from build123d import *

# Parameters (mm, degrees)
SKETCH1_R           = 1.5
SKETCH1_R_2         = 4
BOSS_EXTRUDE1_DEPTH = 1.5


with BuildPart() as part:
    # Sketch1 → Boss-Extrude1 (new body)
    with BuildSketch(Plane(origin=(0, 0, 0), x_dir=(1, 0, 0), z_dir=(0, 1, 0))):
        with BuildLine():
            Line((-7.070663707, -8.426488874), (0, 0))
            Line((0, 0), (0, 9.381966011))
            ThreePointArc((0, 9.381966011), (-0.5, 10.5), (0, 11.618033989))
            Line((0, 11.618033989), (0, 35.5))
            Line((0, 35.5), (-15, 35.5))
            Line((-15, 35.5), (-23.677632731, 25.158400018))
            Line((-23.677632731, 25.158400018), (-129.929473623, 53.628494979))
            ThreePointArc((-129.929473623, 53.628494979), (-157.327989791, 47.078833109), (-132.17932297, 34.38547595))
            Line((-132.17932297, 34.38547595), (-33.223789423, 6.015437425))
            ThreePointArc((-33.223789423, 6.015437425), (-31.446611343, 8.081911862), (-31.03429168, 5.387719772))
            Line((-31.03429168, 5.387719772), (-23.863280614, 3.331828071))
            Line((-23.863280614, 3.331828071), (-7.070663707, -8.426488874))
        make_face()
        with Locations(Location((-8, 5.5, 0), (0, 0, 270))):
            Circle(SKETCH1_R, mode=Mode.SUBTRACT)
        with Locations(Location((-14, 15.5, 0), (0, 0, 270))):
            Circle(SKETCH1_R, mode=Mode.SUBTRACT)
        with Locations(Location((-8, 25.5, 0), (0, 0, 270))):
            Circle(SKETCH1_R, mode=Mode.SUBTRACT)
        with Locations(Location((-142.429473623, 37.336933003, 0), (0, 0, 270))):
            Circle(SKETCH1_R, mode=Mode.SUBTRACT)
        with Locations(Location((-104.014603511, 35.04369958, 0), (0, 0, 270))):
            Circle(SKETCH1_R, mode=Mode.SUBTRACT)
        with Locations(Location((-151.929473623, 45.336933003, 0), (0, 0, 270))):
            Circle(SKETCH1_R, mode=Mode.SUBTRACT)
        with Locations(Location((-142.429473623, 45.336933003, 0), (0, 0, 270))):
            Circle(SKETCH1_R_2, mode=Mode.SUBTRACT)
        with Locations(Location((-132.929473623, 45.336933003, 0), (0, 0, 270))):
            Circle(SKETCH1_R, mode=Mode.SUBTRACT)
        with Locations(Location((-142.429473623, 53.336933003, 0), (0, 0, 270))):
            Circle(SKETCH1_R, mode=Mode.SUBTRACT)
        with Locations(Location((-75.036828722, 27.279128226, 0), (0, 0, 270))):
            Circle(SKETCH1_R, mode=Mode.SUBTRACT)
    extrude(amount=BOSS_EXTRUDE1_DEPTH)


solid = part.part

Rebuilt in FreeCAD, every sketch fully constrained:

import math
import FreeCAD as App
import Part
import Sketcher

V = App.Vector
Q = App.Units.Quantity

doc = App.newDocument("Part")
body = doc.addObject("PartDesign::Body", "Body")

# Sketch on XZ plane
sketch1 = doc.addObject("Sketcher::SketchObject", "Sketch")
body.addObject(sketch1)
sketch1.AttachmentSupport = (doc.XZ_Plane, [""])
sketch1.MapMode = "FlatFace"
sketch1.addGeometry(Part.LineSegment(V(-7.1, 8.4, 0), V(0, 0, 0)), False)
sketch1.addGeometry(Part.LineSegment(V(0, 0, 0), V(0, -9.4, 0)), False)
sketch1.addGeometry(Part.ArcOfCircle(Part.Circle(V(1, -10.5, 0), V(0, 0, 1), 1.5), math.radians(132), math.radians(228)), False)
sketch1.addGeometry(Part.LineSegment(V(0, -11.6, 0), V(0, -35.5, 0)), False)
sketch1.addGeometry(Part.LineSegment(V(0, -35.5, 0), V(-15, -35.5, 0)), False)
sketch1.addGeometry(Part.LineSegment(V(-15, -35.5, 0), V(-23.7, -25.2, 0)), False)
sketch1.addGeometry(Part.LineSegment(V(-23.7, -25.2, 0), V(-129.9, -53.6, 0)), False)
sketch1.addGeometry(Part.ArcOfCircle(Part.Circle(V(-142.4, -45.3, 0), V(0, 0, 1), 15), math.radians(47), math.radians(326)), False)
sketch1.addGeometry(Part.LineSegment(V(-132.2, -34.4, 0), V(-33.2, -6, 0)), False)
sketch1.addGeometry(Part.ArcOfCircle(Part.Circle(V(-31.9, -6.6, 0), V(0, 0, 1), 1.5), math.radians(155), math.radians(417)), False)
sketch1.addGeometry(Part.LineSegment(V(-31, -5.4, 0), V(-23.9, -3.3, 0)), False)
sketch1.addGeometry(Part.LineSegment(V(-23.9, -3.3, 0), V(-7.1, 8.4, 0)), False)
sketch1.addGeometry(Part.Circle(V(-8, -5.5, 0), V(0, 0, 1), 1.5), False)
sketch1.addGeometry(Part.Circle(V(-14, -15.5, 0), V(0, 0, 1), 1.5), False)
sketch1.addGeometry(Part.Circle(V(-75, -27.3, 0), V(0, 0, 1), 1.5), False)
sketch1.addGeometry(Part.Circle(V(-8, -25.5, 0), V(0, 0, 1), 1.5), False)
sketch1.addGeometry(Part.Circle(V(-142.4, -37.3, 0), V(0, 0, 1), 1.5), False)
sketch1.addGeometry(Part.Circle(V(-104, -35, 0), V(0, 0, 1), 1.5), False)
sketch1.addGeometry(Part.Circle(V(-151.9, -45.3, 0), V(0, 0, 1), 1.5), False)
sketch1.addGeometry(Part.Circle(V(-142.4, -45.3, 0), V(0, 0, 1), 4), False)
sketch1.addGeometry(Part.Circle(V(-132.9, -45.3, 0), V(0, 0, 1), 1.5), False)
sketch1.addGeometry(Part.Circle(V(-142.4, -53.3, 0), V(0, 0, 1), 1.5), False)
sketch1.addConstraint(Sketcher.Constraint("Coincident", 0, 2, 1, 1))
sketch1.addConstraint(Sketcher.Constraint("Coincident", 1, 2, 2, 1))
sketch1.addConstraint(Sketcher.Constraint("Coincident", 2, 2, 3, 1))
sketch1.addConstraint(Sketcher.Constraint("Coincident", 3, 2, 4, 1))
sketch1.addConstraint(Sketcher.Constraint("Coincident", 4, 2, 5, 1))
sketch1.addConstraint(Sketcher.Constraint("Coincident", 5, 2, 6, 1))
sketch1.addConstraint(Sketcher.Constraint("Coincident", 6, 2, 7, 2))
sketch1.addConstraint(Sketcher.Constraint("Coincident", 7, 1, 8, 1))
sketch1.addConstraint(Sketcher.Constraint("Coincident", 8, 2, 9, 1))
sketch1.addConstraint(Sketcher.Constraint("Coincident", 9, 2, 10, 1))
sketch1.addConstraint(Sketcher.Constraint("Coincident", 10, 2, 11, 1))
sketch1.addConstraint(Sketcher.Constraint("Coincident", 11, 2, 0, 1))
sketch1.addConstraint(Sketcher.Constraint("Vertical", 1))
sketch1.addConstraint(Sketcher.Constraint("Vertical", 3))
sketch1.addConstraint(Sketcher.Constraint("Horizontal", 4))
sketch1.addConstraint(Sketcher.Constraint("Coincident", 0, 2, -1, 1))
sketch1.addConstraint(Sketcher.Constraint("Coincident", 19, 3, 7, 3))
sketch1.addConstraint(Sketcher.Constraint("Equal", 2, 9))
sketch1.addConstraint(Sketcher.Constraint("Equal", 9, 12))
sketch1.addConstraint(Sketcher.Constraint("Equal", 12, 13))
sketch1.addConstraint(Sketcher.Constraint("Equal", 13, 14))
sketch1.addConstraint(Sketcher.Constraint("Equal", 14, 15))
sketch1.addConstraint(Sketcher.Constraint("Equal", 15, 16))
sketch1.addConstraint(Sketcher.Constraint("Equal", 16, 17))
sketch1.addConstraint(Sketcher.Constraint("Equal", 17, 18))
sketch1.addConstraint(Sketcher.Constraint("Equal", 18, 20))
sketch1.addConstraint(Sketcher.Constraint("Equal", 20, 21))
sketch1.addConstraint(Sketcher.Constraint("PointOnObject", 2, 2, -2))
sketch1.addConstraint(Sketcher.Constraint("Parallel", 0, 5))
sketch1.addConstraint(Sketcher.Constraint("Parallel", 8, 10))
sketch1.addConstraint(Sketcher.Constraint("Horizontal", 7, 3, 18, 3))
sketch1.addConstraint(Sketcher.Constraint("Horizontal", 19, 3, 20, 3))
sketch1.addConstraint(Sketcher.Constraint("Vertical", 12, 3, 15, 3))
sketch1.addConstraint(Sketcher.Constraint("Vertical", 7, 3, 16, 3))
sketch1.addConstraint(Sketcher.Constraint("Vertical", 19, 3, 21, 3))
sketch1.addConstraint(Sketcher.Constraint("Diameter", 12, 3.0))
sketch1.addConstraint(Sketcher.Constraint("Diameter", 19, 8.0))
sketch1.addConstraint(Sketcher.Constraint("Radius", 7, 15.0))
sketch1.addConstraint(Sketcher.Constraint("DistanceX", 4, 2, 4, 1, 15.0))
sketch1.addConstraint(Sketcher.Constraint("Angle", 0, Q("-50 deg")))
sketch1.addConstraint(Sketcher.Constraint("Angle", 6, Q("-165 deg")))
sketch1.addConstraint(Sketcher.Constraint("Angle", 11, Q("35 deg")))
sketch1.addConstraint(Sketcher.Constraint("Distance", 0, 11.0))
sketch1.addConstraint(Sketcher.Constraint("Distance", 6, 110.0))
sketch1.addConstraint(Sketcher.Constraint("DistanceX", -1, 1, 2, 3, 1.0))
sketch1.addConstraint(Sketcher.Constraint("DistanceX", 12, 3, -1, 1, 8.0))
sketch1.addConstraint(Sketcher.Constraint("DistanceX", 13, 3, -1, 1, 14.0))
sketch1.addConstraint(Sketcher.Constraint("DistanceY", 2, 3, 12, 3, 5.0))
sketch1.addConstraint(Sketcher.Constraint("DistanceY", 13, 3, 12, 3, 10.0))
sketch1.addConstraint(Sketcher.Constraint("DistanceY", 15, 3, 13, 3, 10.0))
sketch1.addConstraint(Sketcher.Constraint("DistanceY", 7, 3, 16, 3, 8.0))
sketch1.addConstraint(Sketcher.Constraint("DistanceX", 18, 3, 20, 3, 19.0))
sketch1.addConstraint(Sketcher.Constraint("DistanceY", 21, 3, 7, 3, 8.0))
sketch1.addConstraint(Sketcher.Constraint("DistanceY", 3, 2, 15, 3, 10.0))
sketch1.addConstraint(Sketcher.Constraint("DistanceX", 20, 3, 6, 2, 3.0))
sketch1.addConstraint(Sketcher.Constraint("Distance", 5, 13.5))
sketch1.addConstraint(Sketcher.Constraint("Distance", 11, 20.5))
sketch1.addConstraint(Sketcher.Constraint("DistanceY", 2, 3, -1, 1, 10.5))
sketch1.addConstraint(Sketcher.Constraint("DistanceX", 18, 3, 7, 3, 9.5))
sketch1.addConstraint(Sketcher.Constraint("DistanceX", 9, 3, -1, 1, 31.86))
sketch1.addConstraint(Sketcher.Constraint("DistanceY", 9, 3, -1, 1, 6.64))
sketch1.addConstraint(Sketcher.Constraint("Distance", 10, 7.459899))
sketch1.addConstraint(Sketcher.Constraint("DistanceY", 17, 3, -1, 1, 35.0437))
sketch1.addConstraint(Sketcher.Constraint("DistanceX", 14, 3, -1, 1, 75.036829))
sketch1.addConstraint(Sketcher.Constraint("DistanceY", 14, 3, -1, 1, 27.279128))
sketch1.addConstraint(Sketcher.Constraint("DistanceX", 8, 2, -1, 1, 33.223789))
sketch1.addConstraint(Sketcher.Constraint("DistanceX", 16, 3, 17, 3, 38.41487))
pad1 = doc.addObject("PartDesign::Pad", "Pad")
body.addObject(pad1)
pad1.Profile = sketch1
pad1.Length = 1.5
pad1.Reversed = True

doc.recompute()
